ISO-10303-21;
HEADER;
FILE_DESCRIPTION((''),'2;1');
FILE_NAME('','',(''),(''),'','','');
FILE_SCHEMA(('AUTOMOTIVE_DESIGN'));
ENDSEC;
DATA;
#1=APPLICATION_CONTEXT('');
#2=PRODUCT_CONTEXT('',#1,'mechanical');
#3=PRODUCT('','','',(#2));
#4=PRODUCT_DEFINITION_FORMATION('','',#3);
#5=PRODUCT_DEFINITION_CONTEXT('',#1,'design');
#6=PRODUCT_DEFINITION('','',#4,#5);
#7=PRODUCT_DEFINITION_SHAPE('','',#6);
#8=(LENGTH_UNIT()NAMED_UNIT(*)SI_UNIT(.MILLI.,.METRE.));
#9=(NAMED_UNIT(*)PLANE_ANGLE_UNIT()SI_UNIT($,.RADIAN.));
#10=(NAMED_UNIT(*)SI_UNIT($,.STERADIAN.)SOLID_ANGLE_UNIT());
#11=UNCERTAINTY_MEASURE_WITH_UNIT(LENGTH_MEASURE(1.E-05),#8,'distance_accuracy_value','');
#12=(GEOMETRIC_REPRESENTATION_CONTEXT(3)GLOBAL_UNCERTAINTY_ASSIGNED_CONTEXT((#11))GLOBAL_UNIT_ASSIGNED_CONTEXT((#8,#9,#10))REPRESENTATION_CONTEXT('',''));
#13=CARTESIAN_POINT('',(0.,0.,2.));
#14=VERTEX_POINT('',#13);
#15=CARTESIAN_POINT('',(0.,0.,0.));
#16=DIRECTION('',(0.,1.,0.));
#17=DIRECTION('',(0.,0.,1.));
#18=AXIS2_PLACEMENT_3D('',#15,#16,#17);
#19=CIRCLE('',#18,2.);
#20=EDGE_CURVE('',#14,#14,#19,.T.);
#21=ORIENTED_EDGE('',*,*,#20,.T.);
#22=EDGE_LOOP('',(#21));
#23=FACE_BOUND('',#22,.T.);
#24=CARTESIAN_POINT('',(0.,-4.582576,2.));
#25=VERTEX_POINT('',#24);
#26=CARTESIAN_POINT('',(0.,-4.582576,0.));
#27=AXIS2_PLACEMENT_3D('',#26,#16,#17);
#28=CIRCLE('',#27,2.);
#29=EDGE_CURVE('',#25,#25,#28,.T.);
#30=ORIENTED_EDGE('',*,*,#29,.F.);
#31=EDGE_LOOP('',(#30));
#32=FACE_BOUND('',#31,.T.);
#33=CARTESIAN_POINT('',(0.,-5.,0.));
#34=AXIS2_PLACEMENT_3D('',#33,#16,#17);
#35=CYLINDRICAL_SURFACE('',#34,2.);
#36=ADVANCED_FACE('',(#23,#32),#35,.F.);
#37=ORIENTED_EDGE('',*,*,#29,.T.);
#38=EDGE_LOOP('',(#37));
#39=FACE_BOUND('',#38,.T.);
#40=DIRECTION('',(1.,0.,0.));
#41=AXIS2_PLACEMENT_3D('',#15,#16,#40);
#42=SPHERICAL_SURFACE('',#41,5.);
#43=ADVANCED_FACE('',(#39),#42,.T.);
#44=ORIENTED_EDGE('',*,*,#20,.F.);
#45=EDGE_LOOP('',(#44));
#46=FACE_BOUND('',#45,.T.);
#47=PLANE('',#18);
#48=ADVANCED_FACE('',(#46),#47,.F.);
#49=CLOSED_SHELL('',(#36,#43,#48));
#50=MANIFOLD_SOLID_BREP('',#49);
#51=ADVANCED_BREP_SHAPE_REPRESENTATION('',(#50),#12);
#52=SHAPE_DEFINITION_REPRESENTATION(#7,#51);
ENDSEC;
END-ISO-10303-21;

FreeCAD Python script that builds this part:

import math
import FreeCAD as App
import Part
import Sketcher

doc = App.newDocument("Part")
body = doc.addObject("PartDesign::Body", "Body")

sketch1 = doc.addObject("Sketcher::SketchObject", "Sketch")
body.addObject(sketch1)
sketch1.AttachmentSupport = (doc.XY_Plane, [""])
sketch1.MapMode = "FlatFace"
sketch1.addGeometry(Part.ArcOfCircle(Part.Circle(App.Vector(0, 0, 0), App.Vector(0, 0, 1), 5), math.radians(-90), math.radians(0)), False)
sketch1.addGeometry(Part.ArcOfCircle(Part.Circle(App.Vector(0, 0, 0), App.Vector(0, 0, 1), 5), math.radians(0), math.radians(90)), False)
sketch1.addGeometry(Part.LineSegment(App.Vector(0, 5, 0), App.Vector(0, -5, 0)), False)
sketch1.addConstraint(Sketcher.Constraint("Tangent", 0, 2, 1, 1))
sketch1.addConstraint(Sketcher.Constraint("Coincident", 1, 2, 2, 1))
sketch1.addConstraint(Sketcher.Constraint("Coincident", 2, 2, 0, 1))
sketch1.addConstraint(Sketcher.Constraint("Vertical", 2))
sketch1.addConstraint(Sketcher.Constraint("Coincident", 0, 3, -1, 1))
sketch1.addConstraint(Sketcher.Constraint("Equal", 0, 1))
sketch1.addConstraint(Sketcher.Constraint("PointOnObject", 0, 2, -1))
sketch1.addConstraint(Sketcher.Constraint("PointOnObject", 1, 2, -2))
sketch1.addConstraint(Sketcher.Constraint("Radius", 0, 5.0))
revolution = doc.addObject("PartDesign::Revolution", "Revolution")
body.addObject(revolution)
revolution.Profile = sketch1
revolution.ReferenceAxis = (sketch1, ["V_Axis"])
revolution.Angle = 360

sketch2 = doc.addObject("Sketcher::SketchObject", "Sketch001")
body.addObject(sketch2)
sketch2.AttachmentSupport = (doc.XZ_Plane, [""])
sketch2.MapMode = "FlatFace"
sketch2.addGeometry(Part.Circle(App.Vector(0, 0, 0), App.Vector(0, 0, 1), 2), False)
sketch2.addConstraint(Sketcher.Constraint("Coincident", 0, 3, -1, 1))
sketch2.addConstraint(Sketcher.Constraint("Diameter", 0, 4.0))
pocket1 = doc.addObject("PartDesign::Pocket", "Pocket")
body.addObject(pocket1)
pocket1.Profile = sketch2
pocket1.Type = "ThroughAll"
pocket1.Reversed = True

doc.recompute()
